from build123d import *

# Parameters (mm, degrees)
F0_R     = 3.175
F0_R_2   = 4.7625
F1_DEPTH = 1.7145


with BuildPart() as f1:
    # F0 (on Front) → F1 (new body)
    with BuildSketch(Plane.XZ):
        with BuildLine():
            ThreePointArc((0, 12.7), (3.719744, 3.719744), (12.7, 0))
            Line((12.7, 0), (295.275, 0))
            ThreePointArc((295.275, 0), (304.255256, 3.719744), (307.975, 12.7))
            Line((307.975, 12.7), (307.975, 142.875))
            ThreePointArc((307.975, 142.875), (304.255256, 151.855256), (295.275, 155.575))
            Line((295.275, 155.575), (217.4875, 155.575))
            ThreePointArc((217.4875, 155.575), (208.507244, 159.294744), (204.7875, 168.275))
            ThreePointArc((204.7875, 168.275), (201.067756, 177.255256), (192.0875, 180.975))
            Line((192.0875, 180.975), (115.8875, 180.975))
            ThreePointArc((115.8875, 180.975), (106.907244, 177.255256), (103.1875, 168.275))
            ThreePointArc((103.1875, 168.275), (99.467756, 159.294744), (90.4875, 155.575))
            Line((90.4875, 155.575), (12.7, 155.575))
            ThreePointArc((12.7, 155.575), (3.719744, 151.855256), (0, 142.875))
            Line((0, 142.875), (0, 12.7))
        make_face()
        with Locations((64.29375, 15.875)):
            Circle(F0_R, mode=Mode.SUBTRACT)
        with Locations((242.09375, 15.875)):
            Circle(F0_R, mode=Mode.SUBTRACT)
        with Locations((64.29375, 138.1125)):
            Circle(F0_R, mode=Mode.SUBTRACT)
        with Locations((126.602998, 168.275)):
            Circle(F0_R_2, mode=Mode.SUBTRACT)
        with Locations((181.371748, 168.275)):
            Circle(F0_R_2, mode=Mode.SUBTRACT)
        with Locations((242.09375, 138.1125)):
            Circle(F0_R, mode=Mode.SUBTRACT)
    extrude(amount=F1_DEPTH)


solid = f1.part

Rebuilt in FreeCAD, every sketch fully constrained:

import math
import FreeCAD as App
import Part
import Sketcher
from FreeCAD import Vector
Q = App.Units.Quantity

doc = App.newDocument("Part")
params = doc.addObject("Spreadsheet::Sheet", "Params")
for row, (alias, value) in enumerate([
    ("sketch1_radius", "0.5 in"),
    ("sketch1_diameter", "0.25 in"),
    ("sketch1_width", "3 in"),
    ("sketch1_diameter2", "0.375 in"),
    ("sketch1_width2", "11.125 in"),
    ("pad1_length", "0.0675 in"),
], start=1):
    params.set(f"A{row}", alias)
    params.set(f"B{row}", "=" + value)
    params.setAlias(f"B{row}", alias)

body = doc.addObject("PartDesign::Body", "Body")

# Sketch on XZ plane
sketch1 = doc.addObject("Sketcher::SketchObject", "Sketch")
body.addObject(sketch1)
sketch1.AttachmentSupport = (doc.XZ_Plane, [""])
sketch1.MapMode = "FlatFace"
sketch1.addGeometry(Part.ArcOfCircle(Part.Circle(Vector(12.7, 12.7, 0), Vector(0, 0, 1), 12.7), math.radians(-180), math.radians(-90)), False)
sketch1.addGeometry(Part.LineSegment(Vector(12.7, 0, 0), Vector(295.3, 0, 0)), False)
sketch1.addGeometry(Part.ArcOfCircle(Part.Circle(Vector(295.3, 12.7, 0), Vector(0, 0, 1), 12.7), math.radians(-90), math.radians(0)), False)
sketch1.addGeometry(Part.LineSegment(Vector(308, 12.7, 0), Vector(308, 142.9, 0)), False)
sketch1.addGeometry(Part.ArcOfCircle(Part.Circle(Vector(295.3, 142.9, 0), Vector(0, 0, 1), 12.7), math.radians(0), math.radians(90)), False)
sketch1.addGeometry(Part.LineSegment(Vector(295.3, 155.6, 0), Vector(217.5, 155.6, 0)), False)
sketch1.addGeometry(Part.ArcOfCircle(Part.Circle(Vector(217.5, 168.3, 0), Vector(0, 0, 1), 12.7), math.radians(-180), math.radians(-90)), False)
sketch1.addGeometry(Part.ArcOfCircle(Part.Circle(Vector(192.1, 168.3, 0), Vector(0, 0, 1), 12.7), math.radians(0), math.radians(90)), False)
sketch1.addGeometry(Part.LineSegment(Vector(192.1, 181, 0), Vector(115.9, 181, 0)), False)
sketch1.addGeometry(Part.ArcOfCircle(Part.Circle(Vector(115.9, 168.3, 0), Vector(0, 0, 1), 12.7), math.radians(90), math.radians(180)), False)
sketch1.addGeometry(Part.ArcOfCircle(Part.Circle(Vector(90.5, 168.3, 0), Vector(0, 0, 1), 12.7), math.radians(-90), math.radians(0)), False)
sketch1.addGeometry(Part.LineSegment(Vector(90.5, 155.6, 0), Vector(12.7, 155.6, 0)), False)
sketch1.addGeometry(Part.ArcOfCircle(Part.Circle(Vector(12.7, 142.9, 0), Vector(0, 0, 1), 12.7), math.radians(90), math.radians(180)), False)
sketch1.addGeometry(Part.LineSegment(Vector(0, 142.9, 0), Vector(0, 12.7, 0)), False)
sketch1.addGeometry(Part.Circle(Vector(64.3, 15.9, 0), Vector(0, 0, 1), 3.2), False)
sketch1.addGeometry(Part.Circle(Vector(242.1, 15.9, 0), Vector(0, 0, 1), 3.2), False)
sketch1.addGeometry(Part.Circle(Vector(64.3, 138.1, 0), Vector(0, 0, 1), 3.2), False)
sketch1.addGeometry(Part.Circle(Vector(126.6, 168.3, 0), Vector(0, 0, 1), 4.8), False)
sketch1.addGeometry(Part.Circle(Vector(181.4, 168.3, 0), Vector(0, 0, 1), 4.8), False)
sketch1.addGeometry(Part.Circle(Vector(242.1, 138.1, 0), Vector(0, 0, 1), 3.2), False)
sketch1.addConstraint(Sketcher.Constraint("Tangent", 0, 2, 1, 1))
sketch1.addConstraint(Sketcher.Constraint("Tangent", 1, 2, 2, 1))
sketch1.addConstraint(Sketcher.Constraint("Tangent", 2, 2, 3, 1))
sketch1.addConstraint(Sketcher.Constraint("Tangent", 3, 2, 4, 1))
sketch1.addConstraint(Sketcher.Constraint("Tangent", 4, 2, 5, 1))
sketch1.addConstraint(Sketcher.Constraint("Tangent", 5, 2, 6, 2))
sketch1.addConstraint(Sketcher.Constraint("Tangent", 6, 1, 7, 1))
sketch1.addConstraint(Sketcher.Constraint("Tangent", 7, 2, 8, 1))
sketch1.addConstraint(Sketcher.Constraint("Tangent", 8, 2, 9, 1))
sketch1.addConstraint(Sketcher.Constraint("Tangent", 9, 2, 10, 2))
sketch1.addConstraint(Sketcher.Constraint("Tangent", 10, 1, 11, 1))
sketch1.addConstraint(Sketcher.Constraint("Tangent", 11, 2, 12, 1))
sketch1.addConstraint(Sketcher.Constraint("Tangent", 12, 2, 13, 1))
sketch1.addConstraint(Sketcher.Constraint("Tangent", 13, 2, 0, 1))
sketch1.addConstraint(Sketcher.Constraint("Horizontal", 1))
sketch1.addConstraint(Sketcher.Constraint("Vertical", 3))
sketch1.addConstraint(Sketcher.Constraint("Horizontal", 5))
sketch1.addConstraint(Sketcher.Constraint("Horizontal", 8))
sketch1.addConstraint(Sketcher.Constraint("Horizontal", 11))
sketch1.addConstraint(Sketcher.Constraint("Vertical", 13))
sketch1.addConstraint(Sketcher.Constraint("Equal", 0, 2))
sketch1.addConstraint(Sketcher.Constraint("Equal", 2, 4))
sketch1.addConstraint(Sketcher.Constraint("Equal", 4, 6))
sketch1.addConstraint(Sketcher.Constraint("Equal", 6, 7))
sketch1.addConstraint(Sketcher.Constraint("Equal", 7, 9))
sketch1.addConstraint(Sketcher.Constraint("Equal", 9, 10))
sketch1.addConstraint(Sketcher.Constraint("Equal", 10, 12))
sketch1.addConstraint(Sketcher.Constraint("Equal", 14, 15))
sketch1.addConstraint(Sketcher.Constraint("Equal", 15, 16))
sketch1.addConstraint(Sketcher.Constraint("Equal", 17, 18))
sketch1.addConstraint(Sketcher.Constraint("Equal", 16, 19))
sketch1.addConstraint(Sketcher.Constraint("PointOnObject", 0, 2, -1))
sketch1.addConstraint(Sketcher.Constraint("PointOnObject", 12, 2, -2))
sketch1.addConstraint(Sketcher.Constraint("Horizontal", 6, 3, 7, 3))
sketch1.addConstraint(Sketcher.Constraint("Horizontal", 9, 3, 10, 3))
sketch1.addConstraint(Sketcher.Constraint("Horizontal", 14, 3, 15, 3))
sketch1.addConstraint(Sketcher.Constraint("Horizontal", 10, 3, 17, 3))
sketch1.addConstraint(Sketcher.Constraint("Horizontal", 17, 3, 18, 3))
sketch1.addConstraint(Sketcher.Constraint("Horizontal", 16, 3, 19, 3))
sketch1.addConstraint(Sketcher.Constraint("Vertical", 14, 3, 16, 3))
sketch1.addConstraint(Sketcher.Constraint("Vertical", 15, 3, 19, 3))
sketch1.addConstraint(Sketcher.Constraint("Equal", 5, 11))
sketch1.addConstraint(Sketcher.Constraint("Radius", 0, Q("0.5 in")))
sketch1.addConstraint(Sketcher.Constraint("Diameter", 14, Q("0.25 in")))
sketch1.addConstraint(Sketcher.Constraint("DistanceX", 8, 2, 8, 1, Q("3 in")))
sketch1.addConstraint(Sketcher.Constraint("Diameter", 17, Q("0.375 in")))
sketch1.addConstraint(Sketcher.Constraint("DistanceY", 14, 3, 12, 3, Q("5 in")))
sketch1.addConstraint(Sketcher.Constraint("DistanceX", 14, 3, 15, 3, Q("7 in")))
sketch1.addConstraint(Sketcher.Constraint("DistanceX", 1, 1, 1, 2, Q("11.125 in")))
sketch1.addConstraint(Sketcher.Constraint("DistanceY", 3, 1, 3, 2, Q("5.125 in")))
sketch1.addConstraint(Sketcher.Constraint("DistanceX", -1, 1, 14, 3, Q("2.53125 in")))
sketch1.addConstraint(Sketcher.Constraint("DistanceY", -1, 1, 16, 3, Q("5.4375 in")))
sketch1.addConstraint(Sketcher.Constraint("DistanceX", 17, 3, 18, 3, Q("2.15625 in")))
sketch1.addConstraint(Sketcher.Constraint("DistanceX", -1, 1, 17, 3, 126.602998))
sketch1.setExpression("Constraints[42]", "Params.sketch1_radius")
sketch1.setExpression("Constraints[43]", "Params.sketch1_diameter")
sketch1.setExpression("Constraints[44]", "Params.sketch1_width")
sketch1.setExpression("Constraints[45]", "Params.sketch1_diameter2")
sketch1.setExpression("Constraints[48]", "Params.sketch1_width2")
pad1 = doc.addObject("PartDesign::Pad", "Pad")
body.addObject(pad1)
pad1.Profile = sketch1
pad1.setExpression("Length", "Params.pad1_length")

doc.recompute()
